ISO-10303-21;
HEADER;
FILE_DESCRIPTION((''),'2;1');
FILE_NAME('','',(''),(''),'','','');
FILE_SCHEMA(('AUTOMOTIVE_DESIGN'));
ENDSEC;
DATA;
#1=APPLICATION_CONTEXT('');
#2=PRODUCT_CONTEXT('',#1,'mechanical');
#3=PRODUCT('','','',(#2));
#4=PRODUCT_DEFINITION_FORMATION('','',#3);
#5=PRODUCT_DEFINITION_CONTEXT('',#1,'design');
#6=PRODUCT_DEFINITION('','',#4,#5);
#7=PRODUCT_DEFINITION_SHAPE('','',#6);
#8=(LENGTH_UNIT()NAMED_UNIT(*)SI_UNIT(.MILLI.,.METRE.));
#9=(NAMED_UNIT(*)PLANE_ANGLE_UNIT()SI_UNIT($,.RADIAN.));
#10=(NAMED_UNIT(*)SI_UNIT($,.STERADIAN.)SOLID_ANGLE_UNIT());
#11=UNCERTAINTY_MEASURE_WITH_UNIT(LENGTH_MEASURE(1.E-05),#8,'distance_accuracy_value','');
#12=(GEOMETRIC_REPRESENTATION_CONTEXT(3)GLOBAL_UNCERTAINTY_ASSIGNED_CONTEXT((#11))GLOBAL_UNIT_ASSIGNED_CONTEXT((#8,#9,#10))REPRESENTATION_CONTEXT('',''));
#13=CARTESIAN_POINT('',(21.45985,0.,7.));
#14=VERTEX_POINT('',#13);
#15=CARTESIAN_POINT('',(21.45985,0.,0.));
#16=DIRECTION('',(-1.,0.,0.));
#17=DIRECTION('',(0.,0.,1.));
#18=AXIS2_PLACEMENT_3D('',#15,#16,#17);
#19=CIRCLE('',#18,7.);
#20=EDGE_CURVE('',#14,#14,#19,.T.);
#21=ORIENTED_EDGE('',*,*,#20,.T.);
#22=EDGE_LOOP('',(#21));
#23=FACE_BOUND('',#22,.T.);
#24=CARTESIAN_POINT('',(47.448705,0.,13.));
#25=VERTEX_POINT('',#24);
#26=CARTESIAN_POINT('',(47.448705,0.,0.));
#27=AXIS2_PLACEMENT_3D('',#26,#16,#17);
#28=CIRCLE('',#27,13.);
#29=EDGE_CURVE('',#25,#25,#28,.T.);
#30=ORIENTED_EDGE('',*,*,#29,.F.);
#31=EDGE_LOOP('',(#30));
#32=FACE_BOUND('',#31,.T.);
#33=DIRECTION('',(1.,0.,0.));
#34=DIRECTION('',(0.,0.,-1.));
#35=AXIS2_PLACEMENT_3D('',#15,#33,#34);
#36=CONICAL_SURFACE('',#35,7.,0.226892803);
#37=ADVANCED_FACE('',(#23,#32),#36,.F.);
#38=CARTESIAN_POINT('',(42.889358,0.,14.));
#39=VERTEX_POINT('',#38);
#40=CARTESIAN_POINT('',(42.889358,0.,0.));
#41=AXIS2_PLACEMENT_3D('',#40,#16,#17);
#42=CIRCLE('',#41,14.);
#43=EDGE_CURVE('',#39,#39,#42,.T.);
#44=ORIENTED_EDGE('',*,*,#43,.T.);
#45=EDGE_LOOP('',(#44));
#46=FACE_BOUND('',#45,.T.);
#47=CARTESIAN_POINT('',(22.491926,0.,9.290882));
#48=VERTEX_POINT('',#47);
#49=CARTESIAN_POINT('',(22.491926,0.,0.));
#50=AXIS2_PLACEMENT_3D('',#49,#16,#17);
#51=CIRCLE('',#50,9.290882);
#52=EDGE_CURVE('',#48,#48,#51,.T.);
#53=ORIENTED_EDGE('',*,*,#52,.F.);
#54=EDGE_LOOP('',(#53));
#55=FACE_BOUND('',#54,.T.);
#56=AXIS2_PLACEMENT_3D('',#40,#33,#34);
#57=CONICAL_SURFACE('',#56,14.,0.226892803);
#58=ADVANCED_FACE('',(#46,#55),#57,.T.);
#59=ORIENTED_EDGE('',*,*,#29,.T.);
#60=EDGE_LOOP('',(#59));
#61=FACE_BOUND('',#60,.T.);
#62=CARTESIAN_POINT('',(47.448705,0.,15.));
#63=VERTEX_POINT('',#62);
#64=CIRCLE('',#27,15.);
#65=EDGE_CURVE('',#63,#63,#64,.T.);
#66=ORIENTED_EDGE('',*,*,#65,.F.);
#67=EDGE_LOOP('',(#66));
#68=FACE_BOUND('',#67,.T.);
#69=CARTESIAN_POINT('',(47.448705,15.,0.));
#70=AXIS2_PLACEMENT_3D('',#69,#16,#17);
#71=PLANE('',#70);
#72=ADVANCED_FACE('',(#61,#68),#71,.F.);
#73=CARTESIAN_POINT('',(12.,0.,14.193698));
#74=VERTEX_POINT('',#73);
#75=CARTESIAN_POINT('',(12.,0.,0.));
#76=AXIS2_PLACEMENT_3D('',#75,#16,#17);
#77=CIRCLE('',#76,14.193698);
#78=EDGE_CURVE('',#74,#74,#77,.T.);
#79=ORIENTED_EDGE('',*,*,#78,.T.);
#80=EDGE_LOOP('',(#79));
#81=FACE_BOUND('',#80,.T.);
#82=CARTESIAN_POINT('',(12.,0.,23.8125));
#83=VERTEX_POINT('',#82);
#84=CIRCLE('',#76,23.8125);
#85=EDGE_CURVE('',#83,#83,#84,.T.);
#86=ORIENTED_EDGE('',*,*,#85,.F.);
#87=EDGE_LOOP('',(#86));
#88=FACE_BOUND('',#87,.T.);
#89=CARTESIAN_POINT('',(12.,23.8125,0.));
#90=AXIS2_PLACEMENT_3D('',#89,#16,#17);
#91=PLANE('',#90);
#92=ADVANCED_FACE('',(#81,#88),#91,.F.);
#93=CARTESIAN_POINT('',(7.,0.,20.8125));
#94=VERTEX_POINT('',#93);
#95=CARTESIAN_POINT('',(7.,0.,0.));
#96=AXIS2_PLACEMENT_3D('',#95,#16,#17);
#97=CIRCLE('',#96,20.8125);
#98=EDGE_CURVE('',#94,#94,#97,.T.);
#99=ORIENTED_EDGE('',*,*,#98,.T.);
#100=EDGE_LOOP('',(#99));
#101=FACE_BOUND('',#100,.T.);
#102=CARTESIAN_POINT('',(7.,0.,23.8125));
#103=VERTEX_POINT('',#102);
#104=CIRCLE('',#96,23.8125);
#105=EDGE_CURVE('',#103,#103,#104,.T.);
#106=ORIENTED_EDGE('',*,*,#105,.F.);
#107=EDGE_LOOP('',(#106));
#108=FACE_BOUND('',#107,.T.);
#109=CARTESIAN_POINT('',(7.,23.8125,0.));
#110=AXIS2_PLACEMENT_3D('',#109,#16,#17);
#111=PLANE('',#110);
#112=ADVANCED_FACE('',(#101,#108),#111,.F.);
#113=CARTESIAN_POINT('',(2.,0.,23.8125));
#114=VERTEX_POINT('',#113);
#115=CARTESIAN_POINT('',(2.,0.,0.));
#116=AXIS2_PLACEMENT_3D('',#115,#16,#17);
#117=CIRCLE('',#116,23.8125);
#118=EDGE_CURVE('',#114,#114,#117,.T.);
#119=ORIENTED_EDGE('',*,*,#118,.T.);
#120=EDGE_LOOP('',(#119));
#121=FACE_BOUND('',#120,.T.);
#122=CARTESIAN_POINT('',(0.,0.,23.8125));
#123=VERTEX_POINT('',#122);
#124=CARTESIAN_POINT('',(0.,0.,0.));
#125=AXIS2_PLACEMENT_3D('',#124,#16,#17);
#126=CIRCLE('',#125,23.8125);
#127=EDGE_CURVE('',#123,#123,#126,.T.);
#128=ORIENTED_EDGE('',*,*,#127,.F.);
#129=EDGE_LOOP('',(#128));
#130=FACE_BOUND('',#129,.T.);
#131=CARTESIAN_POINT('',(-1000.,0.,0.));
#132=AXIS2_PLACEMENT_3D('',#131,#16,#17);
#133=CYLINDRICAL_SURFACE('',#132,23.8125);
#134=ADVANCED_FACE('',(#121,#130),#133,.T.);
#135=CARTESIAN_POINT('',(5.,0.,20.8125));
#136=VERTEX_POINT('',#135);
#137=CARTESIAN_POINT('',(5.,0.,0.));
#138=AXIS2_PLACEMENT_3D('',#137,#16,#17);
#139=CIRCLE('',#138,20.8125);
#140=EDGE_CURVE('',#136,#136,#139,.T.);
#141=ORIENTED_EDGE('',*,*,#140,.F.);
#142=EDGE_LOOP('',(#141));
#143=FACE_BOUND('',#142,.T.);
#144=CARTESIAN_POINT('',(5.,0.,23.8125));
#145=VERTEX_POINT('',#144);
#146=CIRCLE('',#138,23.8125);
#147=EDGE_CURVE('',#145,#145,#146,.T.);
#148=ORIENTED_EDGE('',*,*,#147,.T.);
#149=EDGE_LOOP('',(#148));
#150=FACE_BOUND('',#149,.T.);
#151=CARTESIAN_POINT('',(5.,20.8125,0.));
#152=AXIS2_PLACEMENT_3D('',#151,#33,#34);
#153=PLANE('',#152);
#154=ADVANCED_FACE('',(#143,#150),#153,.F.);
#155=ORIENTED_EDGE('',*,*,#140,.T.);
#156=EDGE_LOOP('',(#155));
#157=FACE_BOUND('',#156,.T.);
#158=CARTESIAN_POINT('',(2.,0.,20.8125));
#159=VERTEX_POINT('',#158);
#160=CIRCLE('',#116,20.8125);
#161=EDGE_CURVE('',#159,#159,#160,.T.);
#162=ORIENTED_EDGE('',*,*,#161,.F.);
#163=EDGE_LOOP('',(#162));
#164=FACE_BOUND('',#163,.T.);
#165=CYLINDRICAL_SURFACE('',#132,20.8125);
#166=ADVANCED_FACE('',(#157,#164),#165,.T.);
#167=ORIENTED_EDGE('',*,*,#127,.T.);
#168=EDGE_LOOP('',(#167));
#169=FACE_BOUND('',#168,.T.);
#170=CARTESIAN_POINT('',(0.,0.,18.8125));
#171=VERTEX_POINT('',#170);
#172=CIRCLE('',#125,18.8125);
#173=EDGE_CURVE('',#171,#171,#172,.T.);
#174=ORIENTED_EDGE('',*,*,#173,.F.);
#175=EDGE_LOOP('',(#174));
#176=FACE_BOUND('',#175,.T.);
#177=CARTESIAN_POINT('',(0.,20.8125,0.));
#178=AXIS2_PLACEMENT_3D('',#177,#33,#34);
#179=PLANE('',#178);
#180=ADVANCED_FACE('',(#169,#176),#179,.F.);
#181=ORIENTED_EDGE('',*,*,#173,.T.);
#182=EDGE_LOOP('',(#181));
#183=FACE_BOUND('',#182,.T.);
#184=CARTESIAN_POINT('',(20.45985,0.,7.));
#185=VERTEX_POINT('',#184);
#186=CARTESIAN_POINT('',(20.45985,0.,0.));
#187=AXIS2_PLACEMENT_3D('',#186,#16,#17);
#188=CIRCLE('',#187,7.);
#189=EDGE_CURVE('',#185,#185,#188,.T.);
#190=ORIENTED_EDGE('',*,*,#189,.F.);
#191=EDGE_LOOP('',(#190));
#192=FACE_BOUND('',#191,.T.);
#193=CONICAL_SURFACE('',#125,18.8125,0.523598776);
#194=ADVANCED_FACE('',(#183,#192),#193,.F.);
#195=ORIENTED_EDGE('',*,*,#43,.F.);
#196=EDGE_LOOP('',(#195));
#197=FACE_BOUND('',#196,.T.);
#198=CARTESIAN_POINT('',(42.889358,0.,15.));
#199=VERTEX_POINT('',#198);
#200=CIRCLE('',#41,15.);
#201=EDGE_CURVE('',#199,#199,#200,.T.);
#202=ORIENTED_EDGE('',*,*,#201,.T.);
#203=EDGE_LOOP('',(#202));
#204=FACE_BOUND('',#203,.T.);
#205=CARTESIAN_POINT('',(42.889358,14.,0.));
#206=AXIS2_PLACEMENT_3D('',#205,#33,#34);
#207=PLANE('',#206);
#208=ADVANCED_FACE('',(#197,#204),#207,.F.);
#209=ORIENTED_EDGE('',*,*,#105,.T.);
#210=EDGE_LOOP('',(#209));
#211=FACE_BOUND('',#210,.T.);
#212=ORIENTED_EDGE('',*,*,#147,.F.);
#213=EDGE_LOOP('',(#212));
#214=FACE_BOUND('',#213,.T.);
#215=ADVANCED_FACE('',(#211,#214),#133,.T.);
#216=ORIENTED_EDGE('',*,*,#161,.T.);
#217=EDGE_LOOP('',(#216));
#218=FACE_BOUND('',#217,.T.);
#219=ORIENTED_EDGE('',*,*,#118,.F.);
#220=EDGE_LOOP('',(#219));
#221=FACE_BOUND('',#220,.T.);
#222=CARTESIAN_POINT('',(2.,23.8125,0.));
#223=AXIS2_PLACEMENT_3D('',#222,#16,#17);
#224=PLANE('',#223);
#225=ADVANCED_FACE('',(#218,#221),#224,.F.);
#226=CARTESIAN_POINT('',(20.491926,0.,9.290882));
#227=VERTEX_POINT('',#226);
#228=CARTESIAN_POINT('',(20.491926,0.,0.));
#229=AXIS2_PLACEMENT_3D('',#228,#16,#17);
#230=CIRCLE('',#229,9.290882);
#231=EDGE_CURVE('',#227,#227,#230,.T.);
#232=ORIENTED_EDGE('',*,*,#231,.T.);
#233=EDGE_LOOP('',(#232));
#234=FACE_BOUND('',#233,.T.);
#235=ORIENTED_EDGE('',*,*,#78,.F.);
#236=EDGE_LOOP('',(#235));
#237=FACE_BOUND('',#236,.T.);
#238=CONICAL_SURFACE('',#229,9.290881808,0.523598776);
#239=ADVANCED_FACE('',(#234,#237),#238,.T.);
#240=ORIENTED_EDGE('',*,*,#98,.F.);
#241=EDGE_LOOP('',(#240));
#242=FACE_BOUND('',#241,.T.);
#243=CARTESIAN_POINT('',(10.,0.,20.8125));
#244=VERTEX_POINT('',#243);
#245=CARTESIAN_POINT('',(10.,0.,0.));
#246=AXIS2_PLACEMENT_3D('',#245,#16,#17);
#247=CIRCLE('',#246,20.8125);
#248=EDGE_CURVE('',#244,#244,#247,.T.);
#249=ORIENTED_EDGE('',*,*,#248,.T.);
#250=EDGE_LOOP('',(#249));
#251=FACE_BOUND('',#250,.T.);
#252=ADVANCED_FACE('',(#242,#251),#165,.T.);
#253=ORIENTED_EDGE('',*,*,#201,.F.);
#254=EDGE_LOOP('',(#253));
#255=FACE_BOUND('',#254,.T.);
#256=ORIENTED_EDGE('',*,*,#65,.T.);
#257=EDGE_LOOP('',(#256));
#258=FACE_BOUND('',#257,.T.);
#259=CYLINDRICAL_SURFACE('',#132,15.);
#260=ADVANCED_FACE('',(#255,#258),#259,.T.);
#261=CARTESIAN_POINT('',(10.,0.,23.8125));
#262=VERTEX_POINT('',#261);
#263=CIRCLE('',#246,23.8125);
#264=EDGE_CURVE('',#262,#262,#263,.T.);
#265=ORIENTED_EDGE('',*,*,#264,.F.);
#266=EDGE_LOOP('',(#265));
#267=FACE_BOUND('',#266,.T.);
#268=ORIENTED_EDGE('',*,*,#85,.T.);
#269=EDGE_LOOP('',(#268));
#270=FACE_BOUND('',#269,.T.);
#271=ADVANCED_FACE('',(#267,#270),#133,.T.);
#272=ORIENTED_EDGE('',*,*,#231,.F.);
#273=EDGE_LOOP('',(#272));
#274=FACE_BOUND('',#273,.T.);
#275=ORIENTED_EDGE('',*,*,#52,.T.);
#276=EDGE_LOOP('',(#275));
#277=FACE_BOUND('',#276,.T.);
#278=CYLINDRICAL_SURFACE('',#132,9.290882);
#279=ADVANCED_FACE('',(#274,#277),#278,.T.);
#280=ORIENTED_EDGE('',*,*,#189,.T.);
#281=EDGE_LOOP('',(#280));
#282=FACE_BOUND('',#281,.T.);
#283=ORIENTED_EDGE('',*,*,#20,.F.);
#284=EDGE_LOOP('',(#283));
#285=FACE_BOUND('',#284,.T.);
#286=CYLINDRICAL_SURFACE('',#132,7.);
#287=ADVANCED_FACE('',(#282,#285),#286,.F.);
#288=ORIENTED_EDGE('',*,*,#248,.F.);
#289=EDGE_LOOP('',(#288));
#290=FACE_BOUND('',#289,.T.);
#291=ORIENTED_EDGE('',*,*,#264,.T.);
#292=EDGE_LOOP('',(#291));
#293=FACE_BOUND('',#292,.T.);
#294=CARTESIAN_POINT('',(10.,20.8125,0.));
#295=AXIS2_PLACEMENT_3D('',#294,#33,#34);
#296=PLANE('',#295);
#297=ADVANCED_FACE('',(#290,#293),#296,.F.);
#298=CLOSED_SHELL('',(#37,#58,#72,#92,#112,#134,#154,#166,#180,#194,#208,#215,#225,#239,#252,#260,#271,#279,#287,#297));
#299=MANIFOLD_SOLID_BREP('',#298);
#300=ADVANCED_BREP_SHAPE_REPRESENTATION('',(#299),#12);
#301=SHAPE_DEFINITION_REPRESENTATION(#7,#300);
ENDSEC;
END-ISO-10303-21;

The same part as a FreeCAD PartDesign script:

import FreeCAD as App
import Part
import Sketcher

V = App.Vector
Q = App.Units.Quantity


def add_polygon(sketch, points):
    """Adds a closed chain of lines whose ends are joined by coincident constraints."""
    first, n = sketch.GeometryCount, len(points)
    for a, b in zip(points, points[1:] + points[:1]):
        sketch.addGeometry(Part.LineSegment(App.Vector(*a, 0), App.Vector(*b, 0)), False)
    for i in range(n):
        sketch.addConstraint(Sketcher.Constraint("Coincident", first + i, 2, first + (i + 1) % n, 1))

doc = App.newDocument("Part")
body = doc.addObject("PartDesign::Body", "Body")

sketch1 = body.newObject("Sketcher::SketchObject", "Sketch")
sketch1.AttachmentSupport = (doc.getObject("XY_Plane"), [""])
sketch1.MapMode = "FlatFace"
add_polygon(sketch1, [(2, 23.8), (0, 23.8), (0, 18.8), (20.5, 7), (21.5, 7), (47.4, 13), (47.4, 15), (42.9, 15), (42.9, 14), (22.5, 9.3), (20.5, 9.3), (12, 14.2), (12, 23.8), (10, 23.8), (10, 20.8), (7, 20.8), (7, 23.8), (5, 23.8), (5, 20.8), (2, 20.8)])
sketch1.addConstraint(Sketcher.Constraint("Horizontal", 0))
sketch1.addConstraint(Sketcher.Constraint("Vertical", 1))
sketch1.addConstraint(Sketcher.Constraint("Horizontal", 3))
sketch1.addConstraint(Sketcher.Constraint("Vertical", 5))
sketch1.addConstraint(Sketcher.Constraint("Horizontal", 6))
sketch1.addConstraint(Sketcher.Constraint("Vertical", 7))
sketch1.addConstraint(Sketcher.Constraint("Horizontal", 9))
sketch1.addConstraint(Sketcher.Constraint("Vertical", 11))
sketch1.addConstraint(Sketcher.Constraint("Horizontal", 12))
sketch1.addConstraint(Sketcher.Constraint("Vertical", 13))
sketch1.addConstraint(Sketcher.Constraint("Horizontal", 14))
sketch1.addConstraint(Sketcher.Constraint("Vertical", 15))
sketch1.addConstraint(Sketcher.Constraint("Horizontal", 16))
sketch1.addConstraint(Sketcher.Constraint("Vertical", 17))
sketch1.addConstraint(Sketcher.Constraint("Horizontal", 18))
sketch1.addConstraint(Sketcher.Constraint("Vertical", 19))
sketch1.addConstraint(Sketcher.Constraint("PointOnObject", 0, 2, -2))
sketch1.addConstraint(Sketcher.Constraint("Parallel", 4, 8))
sketch1.addConstraint(Sketcher.Constraint("Parallel", 2, 10))
sketch1.addConstraint(Sketcher.Constraint("Horizontal", 0, 2, 11, 2))
sketch1.addConstraint(Sketcher.Constraint("Horizontal", 12, 2, 15, 2))
sketch1.addConstraint(Sketcher.Constraint("Horizontal", 14, 2, 17, 2))
sketch1.addConstraint(Sketcher.Constraint("Equal", 0, 9))
sketch1.addConstraint(Sketcher.Constraint("Equal", 9, 12))
sketch1.addConstraint(Sketcher.Constraint("Equal", 12, 16))
sketch1.addConstraint(Sketcher.Constraint("Equal", 14, 18))
sketch1.addConstraint(Sketcher.Constraint("Equal", 16, 5))
sketch1.addConstraint(Sketcher.Constraint("Equal", 3, 7))
sketch1.addConstraint(Sketcher.Constraint("Equal", 18, 13))
sketch1.addConstraint(Sketcher.Constraint("DistanceX", 0, 2, 0, 1, 2.0))
sketch1.addConstraint(Sketcher.Constraint("DistanceX", 3, 1, 3, 2, 1.0))
sketch1.addConstraint(Sketcher.Constraint("DistanceX", 14, 2, 14, 1, 3.0))
sketch1.addConstraint(Sketcher.Constraint("DistanceY", 1, 2, 1, 1, 5.0))
sketch1.addConstraint(Sketcher.Constraint("Angle", 2, Q("-30 deg")))
sketch1.addConstraint(Sketcher.Constraint("Angle", 4, Q("13 deg")))
sketch1.addConstraint(Sketcher.Constraint("DistanceY", -1, 1, 2, 2, 7.0))
sketch1.addConstraint(Sketcher.Constraint("DistanceY", -1, 1, 4, 2, 13.0))
sketch1.addConstraint(Sketcher.Constraint("Distance", 2, 23.625))
sketch1.addConstraint(Sketcher.Constraint("Distance", 8, 20.933968))
sketch1.addConstraint(Sketcher.Constraint("DistanceX", 6, 2, 6, 1, 4.559347))
revolution = body.newObject("PartDesign::Revolution", "Revolution")
revolution.Profile = sketch1
revolution.ReferenceAxis = (sketch1, ["H_Axis"])
revolution.Angle = 360

doc.recompute()
